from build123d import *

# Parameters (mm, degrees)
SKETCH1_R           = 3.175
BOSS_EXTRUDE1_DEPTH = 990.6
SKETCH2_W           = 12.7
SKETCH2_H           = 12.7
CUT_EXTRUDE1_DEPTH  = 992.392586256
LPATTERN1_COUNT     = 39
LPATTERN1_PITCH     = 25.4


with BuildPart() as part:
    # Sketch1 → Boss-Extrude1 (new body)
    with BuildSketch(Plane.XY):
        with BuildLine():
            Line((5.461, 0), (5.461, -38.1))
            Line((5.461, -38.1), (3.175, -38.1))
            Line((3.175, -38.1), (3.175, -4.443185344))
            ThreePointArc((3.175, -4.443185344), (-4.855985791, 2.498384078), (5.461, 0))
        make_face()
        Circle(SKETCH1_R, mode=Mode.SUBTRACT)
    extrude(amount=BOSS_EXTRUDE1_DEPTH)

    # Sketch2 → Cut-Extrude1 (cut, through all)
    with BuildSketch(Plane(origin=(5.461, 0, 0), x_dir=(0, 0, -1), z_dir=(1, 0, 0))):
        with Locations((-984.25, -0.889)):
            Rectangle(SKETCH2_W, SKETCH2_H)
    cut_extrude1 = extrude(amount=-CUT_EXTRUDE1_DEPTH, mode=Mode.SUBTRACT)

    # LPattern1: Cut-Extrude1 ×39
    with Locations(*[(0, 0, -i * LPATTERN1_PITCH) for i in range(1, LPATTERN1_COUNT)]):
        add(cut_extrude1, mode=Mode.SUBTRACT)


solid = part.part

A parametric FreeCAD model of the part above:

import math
import FreeCAD as App
import Part
import Sketcher

V = App.Vector
Q = App.Units.Quantity

doc = App.newDocument("Part")
body = doc.addObject("PartDesign::Body", "Body")

# Sketch on XY plane
sketch1 = body.newObject("Sketcher::SketchObject", "Sketch")
sketch1.AttachmentSupport = (doc.getObject("XY_Plane"), [""])
sketch1.MapMode = "FlatFace"
sketch1.addGeometry(Part.LineSegment(V(5.5, -38.1, 0), V(5.5, 0, 0)), False)
sketch1.addGeometry(Part.ArcOfCircle(Part.Circle(V(0, 0, 0), V(0, 0, 1), 5.5), math.radians(0), math.radians(306)), False)
sketch1.addGeometry(Part.LineSegment(V(3.2, -4.4, 0), V(3.2, -38.1, 0)), False)
sketch1.addGeometry(Part.LineSegment(V(3.2, -38.1, 0), V(5.5, -38.1, 0)), False)
sketch1.addGeometry(Part.Circle(V(0, 0, 0), V(0, 0, 1), 3.2), False)
sketch1.addConstraint(Sketcher.Constraint("Tangent", 0, 2, 1, 1))
sketch1.addConstraint(Sketcher.Constraint("Coincident", 1, 2, 2, 1))
sketch1.addConstraint(Sketcher.Constraint("Coincident", 2, 2, 3, 1))
sketch1.addConstraint(Sketcher.Constraint("Coincident", 3, 2, 0, 1))
sketch1.addConstraint(Sketcher.Constraint("Vertical", 0))
sketch1.addConstraint(Sketcher.Constraint("Vertical", 2))
sketch1.addConstraint(Sketcher.Constraint("Horizontal", 3))
sketch1.addConstraint(Sketcher.Constraint("Coincident", 1, 3, -1, 1))
sketch1.addConstraint(Sketcher.Constraint("Coincident", 4, 3, -1, 1))
sketch1.addConstraint(Sketcher.Constraint("Diameter", 4, Q("0.25 in")))
sketch1.addConstraint(Sketcher.Constraint("DistanceY", 0, 1, 0, 2, Q("1.5 in")))
sketch1.addConstraint(Sketcher.Constraint("Radius", 1, Q("0.215 in")))
sketch1.addConstraint(Sketcher.Constraint("DistanceX", 3, 1, 3, 2, Q("0.09 in")))
pad1 = body.newObject("PartDesign::Pad", "Pad")
pad1.Profile = sketch1
pad1.Length = Q("39 in")

# Sketch on YZ plane
sketch2 = body.newObject("Sketcher::SketchObject", "Sketch001")
sketch2.AttachmentSupport = (doc.getObject("YZ_Plane"), [""])
sketch2.MapMode = "FlatFace"
sketch2.AttachmentOffset = App.Placement(V(0, 0, 0.215 * 25.4), App.Rotation())
sketch2.addGeometry(Part.LineSegment(V(5, 991, 0), V(-7, 991, 0)), False)
sketch2.addGeometry(Part.LineSegment(V(-7, 991, 0), V(-7, 978, 0)), False)
sketch2.addGeometry(Part.LineSegment(V(-7, 978, 0), V(5, 978, 0)), False)
sketch2.addGeometry(Part.LineSegment(V(5, 978, 0), V(5, 991, 0)), False)
sketch2.addConstraint(Sketcher.Constraint("Coincident", 0, 2, 1, 1))
sketch2.addConstraint(Sketcher.Constraint("Coincident", 1, 2, 2, 1))
sketch2.addConstraint(Sketcher.Constraint("Coincident", 2, 2, 3, 1))
sketch2.addConstraint(Sketcher.Constraint("Coincident", 3, 2, 0, 1))
sketch2.addConstraint(Sketcher.Constraint("Horizontal", 0))
sketch2.addConstraint(Sketcher.Constraint("Vertical", 1))
sketch2.addConstraint(Sketcher.Constraint("Horizontal", 2))
sketch2.addConstraint(Sketcher.Constraint("Vertical", 3))
sketch2.addConstraint(Sketcher.Constraint("Equal", 2, 1))
sketch2.addConstraint(Sketcher.Constraint("DistanceX", 0, 2, 0, 1, Q("0.5 in")))
sketch2.addConstraint(Sketcher.Constraint("DistanceY", -1, 1, 0, 2, Q("39 in")))
sketch2.addConstraint(Sketcher.Constraint("DistanceX", 0, 2, -1, 1, Q("0.285 in")))
pocket1 = body.newObject("PartDesign::Pocket", "Pocket")
pocket1.Profile = sketch2
pocket1.Type = "ThroughAll"
doc.recompute()

linearpattern = body.newObject("PartDesign::LinearPattern", "LinearPattern")
linearpattern.Originals = [pocket1]
linearpattern.Direction = (doc.getObject("Z_Axis"), [""])
linearpattern.Mode = "offset"
linearpattern.Offset = Q("1 in")
linearpattern.Occurrences = 39
linearpattern.Reversed = True
body.Tip = linearpattern

doc.recompute()
